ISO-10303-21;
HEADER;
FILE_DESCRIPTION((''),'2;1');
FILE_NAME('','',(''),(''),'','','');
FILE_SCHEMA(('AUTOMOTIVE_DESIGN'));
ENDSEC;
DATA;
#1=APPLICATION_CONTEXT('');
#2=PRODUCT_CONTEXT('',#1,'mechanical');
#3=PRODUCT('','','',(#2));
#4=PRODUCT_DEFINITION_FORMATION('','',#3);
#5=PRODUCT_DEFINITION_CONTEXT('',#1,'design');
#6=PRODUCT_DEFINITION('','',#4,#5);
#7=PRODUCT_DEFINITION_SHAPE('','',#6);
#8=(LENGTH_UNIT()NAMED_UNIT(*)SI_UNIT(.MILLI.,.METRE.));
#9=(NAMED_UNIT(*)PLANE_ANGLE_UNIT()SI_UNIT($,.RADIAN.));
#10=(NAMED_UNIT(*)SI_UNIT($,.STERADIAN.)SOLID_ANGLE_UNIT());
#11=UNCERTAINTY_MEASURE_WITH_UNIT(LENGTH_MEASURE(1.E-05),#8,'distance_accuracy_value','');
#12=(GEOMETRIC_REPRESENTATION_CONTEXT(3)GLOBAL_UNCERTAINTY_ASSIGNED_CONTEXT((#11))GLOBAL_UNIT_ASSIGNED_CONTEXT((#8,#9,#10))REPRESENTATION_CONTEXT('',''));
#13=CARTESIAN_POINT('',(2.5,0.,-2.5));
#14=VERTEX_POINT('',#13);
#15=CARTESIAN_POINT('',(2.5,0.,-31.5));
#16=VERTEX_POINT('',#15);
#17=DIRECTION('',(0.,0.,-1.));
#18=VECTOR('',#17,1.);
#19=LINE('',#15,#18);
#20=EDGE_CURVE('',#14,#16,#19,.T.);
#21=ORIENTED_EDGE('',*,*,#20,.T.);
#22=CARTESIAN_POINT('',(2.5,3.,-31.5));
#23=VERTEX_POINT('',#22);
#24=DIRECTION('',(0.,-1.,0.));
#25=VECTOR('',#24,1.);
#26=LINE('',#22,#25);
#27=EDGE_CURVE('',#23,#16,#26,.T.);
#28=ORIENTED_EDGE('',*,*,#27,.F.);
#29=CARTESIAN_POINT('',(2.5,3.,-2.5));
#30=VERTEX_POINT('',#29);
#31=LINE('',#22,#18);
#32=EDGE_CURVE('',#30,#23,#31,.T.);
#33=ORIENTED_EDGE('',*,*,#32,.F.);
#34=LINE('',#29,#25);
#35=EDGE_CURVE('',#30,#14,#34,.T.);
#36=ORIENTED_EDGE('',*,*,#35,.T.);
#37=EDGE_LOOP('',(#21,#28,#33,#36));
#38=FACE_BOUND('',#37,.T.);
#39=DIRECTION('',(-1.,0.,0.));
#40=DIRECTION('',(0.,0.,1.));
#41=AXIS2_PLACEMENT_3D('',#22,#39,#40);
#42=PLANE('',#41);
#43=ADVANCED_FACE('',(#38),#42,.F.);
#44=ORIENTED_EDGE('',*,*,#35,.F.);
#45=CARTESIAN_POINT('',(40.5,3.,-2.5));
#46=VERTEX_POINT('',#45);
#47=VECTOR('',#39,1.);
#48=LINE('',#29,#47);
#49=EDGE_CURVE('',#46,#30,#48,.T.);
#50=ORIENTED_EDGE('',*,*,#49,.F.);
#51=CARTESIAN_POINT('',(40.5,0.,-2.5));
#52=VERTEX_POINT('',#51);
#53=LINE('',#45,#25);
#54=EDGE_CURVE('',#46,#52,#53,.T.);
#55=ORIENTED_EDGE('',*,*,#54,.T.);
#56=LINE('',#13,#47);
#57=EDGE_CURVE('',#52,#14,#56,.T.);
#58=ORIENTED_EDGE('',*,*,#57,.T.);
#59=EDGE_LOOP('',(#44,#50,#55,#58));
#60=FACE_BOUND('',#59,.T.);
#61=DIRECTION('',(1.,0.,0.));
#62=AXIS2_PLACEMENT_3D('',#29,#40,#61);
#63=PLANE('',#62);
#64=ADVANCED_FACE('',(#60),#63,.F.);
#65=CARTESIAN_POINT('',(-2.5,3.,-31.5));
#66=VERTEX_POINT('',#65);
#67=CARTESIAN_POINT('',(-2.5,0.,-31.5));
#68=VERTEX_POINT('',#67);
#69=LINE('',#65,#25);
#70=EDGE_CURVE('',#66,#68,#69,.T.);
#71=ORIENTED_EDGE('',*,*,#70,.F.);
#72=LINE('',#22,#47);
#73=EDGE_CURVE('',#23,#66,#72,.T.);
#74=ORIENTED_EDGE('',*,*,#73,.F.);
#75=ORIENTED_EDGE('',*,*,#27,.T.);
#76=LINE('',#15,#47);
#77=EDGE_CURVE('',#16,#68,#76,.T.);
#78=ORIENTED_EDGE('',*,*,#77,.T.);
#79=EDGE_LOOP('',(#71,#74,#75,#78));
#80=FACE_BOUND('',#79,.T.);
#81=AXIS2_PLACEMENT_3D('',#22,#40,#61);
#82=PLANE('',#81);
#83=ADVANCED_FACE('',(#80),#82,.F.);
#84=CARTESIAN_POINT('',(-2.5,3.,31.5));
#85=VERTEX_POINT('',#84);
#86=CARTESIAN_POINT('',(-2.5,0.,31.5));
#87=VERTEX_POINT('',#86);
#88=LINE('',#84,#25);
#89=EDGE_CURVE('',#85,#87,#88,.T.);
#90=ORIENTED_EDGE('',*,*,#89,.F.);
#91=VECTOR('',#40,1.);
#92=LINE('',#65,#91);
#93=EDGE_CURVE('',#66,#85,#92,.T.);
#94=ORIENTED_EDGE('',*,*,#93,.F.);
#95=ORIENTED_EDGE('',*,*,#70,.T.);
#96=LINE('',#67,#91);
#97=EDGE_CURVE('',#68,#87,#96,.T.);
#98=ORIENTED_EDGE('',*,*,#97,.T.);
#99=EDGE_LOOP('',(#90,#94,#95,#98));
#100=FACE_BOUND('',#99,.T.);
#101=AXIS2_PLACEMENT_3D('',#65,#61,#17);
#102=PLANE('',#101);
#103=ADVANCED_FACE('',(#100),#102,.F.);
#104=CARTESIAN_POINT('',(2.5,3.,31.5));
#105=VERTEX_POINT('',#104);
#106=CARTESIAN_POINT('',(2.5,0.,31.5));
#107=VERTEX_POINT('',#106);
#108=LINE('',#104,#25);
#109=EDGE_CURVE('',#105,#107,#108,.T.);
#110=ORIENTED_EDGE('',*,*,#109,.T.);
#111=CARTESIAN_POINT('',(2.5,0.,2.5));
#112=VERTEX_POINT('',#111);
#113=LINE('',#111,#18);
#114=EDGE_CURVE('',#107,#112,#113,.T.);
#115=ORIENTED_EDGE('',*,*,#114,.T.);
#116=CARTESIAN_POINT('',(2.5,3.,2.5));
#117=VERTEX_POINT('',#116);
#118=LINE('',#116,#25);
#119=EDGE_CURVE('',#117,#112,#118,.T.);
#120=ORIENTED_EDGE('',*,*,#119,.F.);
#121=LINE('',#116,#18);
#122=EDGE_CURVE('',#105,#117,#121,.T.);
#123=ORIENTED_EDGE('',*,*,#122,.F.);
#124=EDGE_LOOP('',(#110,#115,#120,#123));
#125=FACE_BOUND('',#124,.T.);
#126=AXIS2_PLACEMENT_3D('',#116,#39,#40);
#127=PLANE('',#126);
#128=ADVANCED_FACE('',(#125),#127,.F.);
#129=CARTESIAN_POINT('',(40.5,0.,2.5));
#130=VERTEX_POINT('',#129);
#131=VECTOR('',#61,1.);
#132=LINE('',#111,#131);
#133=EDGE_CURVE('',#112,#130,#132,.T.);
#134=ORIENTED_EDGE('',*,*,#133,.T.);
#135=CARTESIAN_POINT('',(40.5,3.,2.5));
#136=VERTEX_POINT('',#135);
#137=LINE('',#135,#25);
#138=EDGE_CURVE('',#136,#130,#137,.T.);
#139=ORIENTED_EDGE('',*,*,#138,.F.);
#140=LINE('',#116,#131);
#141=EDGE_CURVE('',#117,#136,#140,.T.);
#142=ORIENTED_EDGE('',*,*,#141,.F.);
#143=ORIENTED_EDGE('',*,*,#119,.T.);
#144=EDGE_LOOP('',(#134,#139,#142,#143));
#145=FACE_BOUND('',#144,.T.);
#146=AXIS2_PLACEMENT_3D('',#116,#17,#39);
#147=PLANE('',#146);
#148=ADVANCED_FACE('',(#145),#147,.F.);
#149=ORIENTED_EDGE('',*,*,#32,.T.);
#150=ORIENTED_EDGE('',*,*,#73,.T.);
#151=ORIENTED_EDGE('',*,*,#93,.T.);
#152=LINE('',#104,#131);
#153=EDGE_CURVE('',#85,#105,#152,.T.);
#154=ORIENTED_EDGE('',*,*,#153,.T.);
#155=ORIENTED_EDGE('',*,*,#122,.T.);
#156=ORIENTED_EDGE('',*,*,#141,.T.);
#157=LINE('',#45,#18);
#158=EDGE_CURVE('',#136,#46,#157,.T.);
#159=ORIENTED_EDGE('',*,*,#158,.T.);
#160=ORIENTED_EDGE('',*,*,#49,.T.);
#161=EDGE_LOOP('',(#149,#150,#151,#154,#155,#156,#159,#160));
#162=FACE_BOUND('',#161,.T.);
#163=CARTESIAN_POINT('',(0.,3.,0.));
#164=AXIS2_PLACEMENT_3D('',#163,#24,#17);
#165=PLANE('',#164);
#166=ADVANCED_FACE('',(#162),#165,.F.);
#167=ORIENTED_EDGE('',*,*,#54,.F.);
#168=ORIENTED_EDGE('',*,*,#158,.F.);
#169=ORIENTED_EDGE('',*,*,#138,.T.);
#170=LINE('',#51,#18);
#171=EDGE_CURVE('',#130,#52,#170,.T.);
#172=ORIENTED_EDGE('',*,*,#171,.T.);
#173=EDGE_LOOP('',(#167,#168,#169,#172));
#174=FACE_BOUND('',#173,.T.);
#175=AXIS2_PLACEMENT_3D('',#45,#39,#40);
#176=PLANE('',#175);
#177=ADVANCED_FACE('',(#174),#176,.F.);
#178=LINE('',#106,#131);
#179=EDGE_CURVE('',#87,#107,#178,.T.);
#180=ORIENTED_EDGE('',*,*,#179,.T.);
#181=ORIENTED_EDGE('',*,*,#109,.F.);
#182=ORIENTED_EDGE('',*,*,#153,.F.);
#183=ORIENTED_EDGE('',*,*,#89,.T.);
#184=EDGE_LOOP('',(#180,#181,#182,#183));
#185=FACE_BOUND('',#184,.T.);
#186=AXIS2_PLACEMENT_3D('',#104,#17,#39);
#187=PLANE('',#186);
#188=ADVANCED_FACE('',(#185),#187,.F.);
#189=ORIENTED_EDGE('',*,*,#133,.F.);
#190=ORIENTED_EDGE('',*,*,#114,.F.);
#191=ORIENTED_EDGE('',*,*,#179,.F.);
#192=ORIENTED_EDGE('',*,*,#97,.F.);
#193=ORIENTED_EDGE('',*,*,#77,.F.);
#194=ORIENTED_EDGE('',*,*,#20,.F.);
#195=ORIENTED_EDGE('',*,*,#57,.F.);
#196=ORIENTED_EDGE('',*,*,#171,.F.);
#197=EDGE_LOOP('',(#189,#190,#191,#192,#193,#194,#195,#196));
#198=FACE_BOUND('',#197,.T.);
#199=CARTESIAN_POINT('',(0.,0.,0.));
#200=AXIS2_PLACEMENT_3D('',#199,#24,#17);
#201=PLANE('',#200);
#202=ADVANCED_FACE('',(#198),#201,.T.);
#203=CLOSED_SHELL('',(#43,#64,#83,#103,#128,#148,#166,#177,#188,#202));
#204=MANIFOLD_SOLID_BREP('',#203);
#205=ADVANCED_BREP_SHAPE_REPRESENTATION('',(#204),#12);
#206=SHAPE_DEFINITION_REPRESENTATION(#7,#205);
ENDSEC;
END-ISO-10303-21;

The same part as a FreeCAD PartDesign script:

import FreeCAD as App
import Part
import Sketcher

V = App.Vector

doc = App.newDocument("Part")
params = doc.addObject("Spreadsheet::Sheet", "Params")
for row, (alias, value) in enumerate([
    ("sketch1_width", "5 mm"),
    ("sketch1_width2", "38 mm"),
    ("sketch1_height", "63 mm"),
    ("pad1_length", "3 mm"),
], start=1):
    params.set(f"A{row}", alias)
    params.set(f"B{row}", "=" + value)
    params.setAlias(f"B{row}", alias)

body = doc.addObject("PartDesign::Body", "Body")

# Sketch on XZ plane
sketch1 = body.newObject("Sketcher::SketchObject", "Sketch")
sketch1.AttachmentSupport = (doc.getObject("XZ_Plane"), [""])
sketch1.MapMode = "FlatFace"
sketch1.addGeometry([
    Part.LineSegment(V(2, -32, 0), V(-2, -32, 0)),  # 0
    Part.LineSegment(V(-2, -32, 0), V(-2, 32, 0)),  # 1
    Part.LineSegment(V(-2, 32, 0), V(2, 32, 0)),  # 2
    Part.LineSegment(V(2, 32, 0), V(2, 2, 0)),  # 3
    Part.LineSegment(V(2, 2, 0), V(40, 2, 0)),  # 4
    Part.LineSegment(V(40, 2, 0), V(40, -2, 0)),  # 5
    Part.LineSegment(V(40, -2, 0), V(2, -2, 0)),  # 6
    Part.LineSegment(V(2, -2, 0), V(2, -32, 0)),  # 7
], False)
sketch1.addConstraint([
    Sketcher.Constraint("Coincident", 0, 2, 1, 1),
    Sketcher.Constraint("Coincident", 1, 2, 2, 1),
    Sketcher.Constraint("Coincident", 2, 2, 3, 1),
    Sketcher.Constraint("Coincident", 3, 2, 4, 1),
    Sketcher.Constraint("Coincident", 4, 2, 5, 1),
    Sketcher.Constraint("Coincident", 5, 2, 6, 1),
    Sketcher.Constraint("Coincident", 6, 2, 7, 1),
    Sketcher.Constraint("Coincident", 7, 2, 0, 1),
    Sketcher.Constraint("Horizontal", 0),
    Sketcher.Constraint("Vertical", 1),
    Sketcher.Constraint("Horizontal", 2),
    Sketcher.Constraint("Vertical", 3),
    Sketcher.Constraint("Horizontal", 4),
    Sketcher.Constraint("Vertical", 5),
    Sketcher.Constraint("Horizontal", 6),
    Sketcher.Constraint("Vertical", 7),
    Sketcher.Constraint("Symmetric", 0, 2, 2, 2, -1, 1),
    Sketcher.Constraint("Symmetric", 3, 2, 6, 2, -1),
    Sketcher.Constraint("Equal", 2, 5),
    Sketcher.Constraint("DistanceX", 0, 2, 0, 1, 5.0),
    Sketcher.Constraint("DistanceX", 4, 1, 4, 2, 38.0),
    Sketcher.Constraint("DistanceY", 1, 1, 1, 2, 63.0),
])
sketch1.setExpression("Constraints[19]", "Params.sketch1_width")
sketch1.setExpression("Constraints[20]", "Params.sketch1_width2")
sketch1.setExpression("Constraints[21]", "Params.sketch1_height")
pad1 = body.newObject("PartDesign::Pad", "Pad")
pad1.Profile = sketch1
pad1.setExpression("Length", "Params.pad1_length")
pad1.Reversed = True

doc.recompute()
